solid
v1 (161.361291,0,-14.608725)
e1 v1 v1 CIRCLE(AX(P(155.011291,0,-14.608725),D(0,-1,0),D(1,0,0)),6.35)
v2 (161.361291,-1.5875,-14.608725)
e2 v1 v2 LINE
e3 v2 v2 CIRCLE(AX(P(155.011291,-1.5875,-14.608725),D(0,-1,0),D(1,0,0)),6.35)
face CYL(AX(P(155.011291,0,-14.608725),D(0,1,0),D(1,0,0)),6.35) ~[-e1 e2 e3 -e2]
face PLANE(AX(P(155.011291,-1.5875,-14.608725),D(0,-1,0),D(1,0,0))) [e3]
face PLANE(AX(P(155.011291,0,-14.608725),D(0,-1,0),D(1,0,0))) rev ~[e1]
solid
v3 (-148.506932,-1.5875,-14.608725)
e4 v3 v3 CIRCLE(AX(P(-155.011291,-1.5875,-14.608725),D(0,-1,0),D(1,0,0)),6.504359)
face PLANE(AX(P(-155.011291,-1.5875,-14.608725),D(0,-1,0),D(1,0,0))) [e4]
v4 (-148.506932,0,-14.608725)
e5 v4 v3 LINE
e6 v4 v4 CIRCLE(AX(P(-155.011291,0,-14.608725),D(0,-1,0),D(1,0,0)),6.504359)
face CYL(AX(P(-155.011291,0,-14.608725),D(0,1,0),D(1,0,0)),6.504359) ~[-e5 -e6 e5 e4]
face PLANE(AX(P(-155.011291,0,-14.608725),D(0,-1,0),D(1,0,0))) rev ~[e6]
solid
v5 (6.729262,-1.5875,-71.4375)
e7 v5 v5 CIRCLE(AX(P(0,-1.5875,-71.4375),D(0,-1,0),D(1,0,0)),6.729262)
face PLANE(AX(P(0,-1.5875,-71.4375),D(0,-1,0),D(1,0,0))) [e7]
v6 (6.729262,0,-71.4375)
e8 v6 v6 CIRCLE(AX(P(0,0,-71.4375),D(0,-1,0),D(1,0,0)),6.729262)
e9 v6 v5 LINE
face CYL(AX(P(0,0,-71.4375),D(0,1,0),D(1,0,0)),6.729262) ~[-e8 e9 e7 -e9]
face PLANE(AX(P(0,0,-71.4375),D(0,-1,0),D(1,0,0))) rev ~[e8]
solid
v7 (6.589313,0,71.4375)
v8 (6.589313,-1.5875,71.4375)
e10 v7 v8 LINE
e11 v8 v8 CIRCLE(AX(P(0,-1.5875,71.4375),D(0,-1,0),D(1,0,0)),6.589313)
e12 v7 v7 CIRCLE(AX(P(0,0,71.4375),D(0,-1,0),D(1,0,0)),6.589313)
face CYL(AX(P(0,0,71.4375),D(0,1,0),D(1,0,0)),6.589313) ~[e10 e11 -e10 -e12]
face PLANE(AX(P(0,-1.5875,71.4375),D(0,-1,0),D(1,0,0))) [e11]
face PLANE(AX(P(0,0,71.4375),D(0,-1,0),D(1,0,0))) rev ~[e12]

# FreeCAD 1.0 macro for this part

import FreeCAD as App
import Part
import Sketcher
Q = App.Units.Quantity

doc = App.newDocument("Part")
params = doc.addObject("Spreadsheet::Sheet", "Params")
for row, (alias, value) in enumerate([
    ("sketch1_diameter", "0.5 in"),
    ("pad1_length", "0.0625 in"),
], start=1):
    params.set(f"A{row}", alias)
    params.set(f"B{row}", "=" + value)
    params.setAlias(f"B{row}", alias)

body = doc.addObject("PartDesign::Body", "Body")
body.AllowCompound = True

# Sketch on XZ plane
sketch1 = body.newObject("Sketcher::SketchObject", "Sketch")
sketch1.AttachmentSupport = (doc.getObject("XZ_Plane"), [""])
sketch1.MapMode = "FlatFace"
sketch1.addGeometry([
    Part.Circle(App.Vector(-155, -15, 0), App.Vector(0, 0, 1), 7),
    Part.Circle(App.Vector(0, 71, 0), App.Vector(0, 0, 1), 7),
    Part.Circle(App.Vector(155, -15, 0), App.Vector(0, 0, 1), 6),
    Part.Circle(App.Vector(0, -71, 0), App.Vector(0, 0, 1), 7),
], False)
sketch1.addConstraint([
    Sketcher.Constraint("Symmetric", 1, 3, 3, 3, -1, 1),
    Sketcher.Constraint("Symmetric", 0, 3, 2, 3, -2),
    Sketcher.Constraint("PointOnObject", 1, 3, -2),
    Sketcher.Constraint("Diameter", 2, Q("0.5 in")),
    Sketcher.Constraint("DistanceY", -1, 1, 1, 3, Q("2.8125 in")),
    Sketcher.Constraint("Diameter", 0, Q("13.008718 mm")),
    Sketcher.Constraint("Diameter", 1, Q("13.178626 mm")),
    Sketcher.Constraint("Diameter", 3, Q("13.458524 mm")),
    Sketcher.Constraint("DistanceX", 0, 3, -1, 1, Q("155.011291 mm")),
    Sketcher.Constraint("DistanceY", 0, 3, -1, 1, Q("14.608725 mm")),
])
sketch1.setExpression("Constraints[3]", "Params.sketch1_diameter")
pad1 = body.newObject("PartDesign::Pad", "Pad")
pad1.Profile = sketch1
pad1.setExpression("Length", "Params.pad1_length")

doc.recompute()
